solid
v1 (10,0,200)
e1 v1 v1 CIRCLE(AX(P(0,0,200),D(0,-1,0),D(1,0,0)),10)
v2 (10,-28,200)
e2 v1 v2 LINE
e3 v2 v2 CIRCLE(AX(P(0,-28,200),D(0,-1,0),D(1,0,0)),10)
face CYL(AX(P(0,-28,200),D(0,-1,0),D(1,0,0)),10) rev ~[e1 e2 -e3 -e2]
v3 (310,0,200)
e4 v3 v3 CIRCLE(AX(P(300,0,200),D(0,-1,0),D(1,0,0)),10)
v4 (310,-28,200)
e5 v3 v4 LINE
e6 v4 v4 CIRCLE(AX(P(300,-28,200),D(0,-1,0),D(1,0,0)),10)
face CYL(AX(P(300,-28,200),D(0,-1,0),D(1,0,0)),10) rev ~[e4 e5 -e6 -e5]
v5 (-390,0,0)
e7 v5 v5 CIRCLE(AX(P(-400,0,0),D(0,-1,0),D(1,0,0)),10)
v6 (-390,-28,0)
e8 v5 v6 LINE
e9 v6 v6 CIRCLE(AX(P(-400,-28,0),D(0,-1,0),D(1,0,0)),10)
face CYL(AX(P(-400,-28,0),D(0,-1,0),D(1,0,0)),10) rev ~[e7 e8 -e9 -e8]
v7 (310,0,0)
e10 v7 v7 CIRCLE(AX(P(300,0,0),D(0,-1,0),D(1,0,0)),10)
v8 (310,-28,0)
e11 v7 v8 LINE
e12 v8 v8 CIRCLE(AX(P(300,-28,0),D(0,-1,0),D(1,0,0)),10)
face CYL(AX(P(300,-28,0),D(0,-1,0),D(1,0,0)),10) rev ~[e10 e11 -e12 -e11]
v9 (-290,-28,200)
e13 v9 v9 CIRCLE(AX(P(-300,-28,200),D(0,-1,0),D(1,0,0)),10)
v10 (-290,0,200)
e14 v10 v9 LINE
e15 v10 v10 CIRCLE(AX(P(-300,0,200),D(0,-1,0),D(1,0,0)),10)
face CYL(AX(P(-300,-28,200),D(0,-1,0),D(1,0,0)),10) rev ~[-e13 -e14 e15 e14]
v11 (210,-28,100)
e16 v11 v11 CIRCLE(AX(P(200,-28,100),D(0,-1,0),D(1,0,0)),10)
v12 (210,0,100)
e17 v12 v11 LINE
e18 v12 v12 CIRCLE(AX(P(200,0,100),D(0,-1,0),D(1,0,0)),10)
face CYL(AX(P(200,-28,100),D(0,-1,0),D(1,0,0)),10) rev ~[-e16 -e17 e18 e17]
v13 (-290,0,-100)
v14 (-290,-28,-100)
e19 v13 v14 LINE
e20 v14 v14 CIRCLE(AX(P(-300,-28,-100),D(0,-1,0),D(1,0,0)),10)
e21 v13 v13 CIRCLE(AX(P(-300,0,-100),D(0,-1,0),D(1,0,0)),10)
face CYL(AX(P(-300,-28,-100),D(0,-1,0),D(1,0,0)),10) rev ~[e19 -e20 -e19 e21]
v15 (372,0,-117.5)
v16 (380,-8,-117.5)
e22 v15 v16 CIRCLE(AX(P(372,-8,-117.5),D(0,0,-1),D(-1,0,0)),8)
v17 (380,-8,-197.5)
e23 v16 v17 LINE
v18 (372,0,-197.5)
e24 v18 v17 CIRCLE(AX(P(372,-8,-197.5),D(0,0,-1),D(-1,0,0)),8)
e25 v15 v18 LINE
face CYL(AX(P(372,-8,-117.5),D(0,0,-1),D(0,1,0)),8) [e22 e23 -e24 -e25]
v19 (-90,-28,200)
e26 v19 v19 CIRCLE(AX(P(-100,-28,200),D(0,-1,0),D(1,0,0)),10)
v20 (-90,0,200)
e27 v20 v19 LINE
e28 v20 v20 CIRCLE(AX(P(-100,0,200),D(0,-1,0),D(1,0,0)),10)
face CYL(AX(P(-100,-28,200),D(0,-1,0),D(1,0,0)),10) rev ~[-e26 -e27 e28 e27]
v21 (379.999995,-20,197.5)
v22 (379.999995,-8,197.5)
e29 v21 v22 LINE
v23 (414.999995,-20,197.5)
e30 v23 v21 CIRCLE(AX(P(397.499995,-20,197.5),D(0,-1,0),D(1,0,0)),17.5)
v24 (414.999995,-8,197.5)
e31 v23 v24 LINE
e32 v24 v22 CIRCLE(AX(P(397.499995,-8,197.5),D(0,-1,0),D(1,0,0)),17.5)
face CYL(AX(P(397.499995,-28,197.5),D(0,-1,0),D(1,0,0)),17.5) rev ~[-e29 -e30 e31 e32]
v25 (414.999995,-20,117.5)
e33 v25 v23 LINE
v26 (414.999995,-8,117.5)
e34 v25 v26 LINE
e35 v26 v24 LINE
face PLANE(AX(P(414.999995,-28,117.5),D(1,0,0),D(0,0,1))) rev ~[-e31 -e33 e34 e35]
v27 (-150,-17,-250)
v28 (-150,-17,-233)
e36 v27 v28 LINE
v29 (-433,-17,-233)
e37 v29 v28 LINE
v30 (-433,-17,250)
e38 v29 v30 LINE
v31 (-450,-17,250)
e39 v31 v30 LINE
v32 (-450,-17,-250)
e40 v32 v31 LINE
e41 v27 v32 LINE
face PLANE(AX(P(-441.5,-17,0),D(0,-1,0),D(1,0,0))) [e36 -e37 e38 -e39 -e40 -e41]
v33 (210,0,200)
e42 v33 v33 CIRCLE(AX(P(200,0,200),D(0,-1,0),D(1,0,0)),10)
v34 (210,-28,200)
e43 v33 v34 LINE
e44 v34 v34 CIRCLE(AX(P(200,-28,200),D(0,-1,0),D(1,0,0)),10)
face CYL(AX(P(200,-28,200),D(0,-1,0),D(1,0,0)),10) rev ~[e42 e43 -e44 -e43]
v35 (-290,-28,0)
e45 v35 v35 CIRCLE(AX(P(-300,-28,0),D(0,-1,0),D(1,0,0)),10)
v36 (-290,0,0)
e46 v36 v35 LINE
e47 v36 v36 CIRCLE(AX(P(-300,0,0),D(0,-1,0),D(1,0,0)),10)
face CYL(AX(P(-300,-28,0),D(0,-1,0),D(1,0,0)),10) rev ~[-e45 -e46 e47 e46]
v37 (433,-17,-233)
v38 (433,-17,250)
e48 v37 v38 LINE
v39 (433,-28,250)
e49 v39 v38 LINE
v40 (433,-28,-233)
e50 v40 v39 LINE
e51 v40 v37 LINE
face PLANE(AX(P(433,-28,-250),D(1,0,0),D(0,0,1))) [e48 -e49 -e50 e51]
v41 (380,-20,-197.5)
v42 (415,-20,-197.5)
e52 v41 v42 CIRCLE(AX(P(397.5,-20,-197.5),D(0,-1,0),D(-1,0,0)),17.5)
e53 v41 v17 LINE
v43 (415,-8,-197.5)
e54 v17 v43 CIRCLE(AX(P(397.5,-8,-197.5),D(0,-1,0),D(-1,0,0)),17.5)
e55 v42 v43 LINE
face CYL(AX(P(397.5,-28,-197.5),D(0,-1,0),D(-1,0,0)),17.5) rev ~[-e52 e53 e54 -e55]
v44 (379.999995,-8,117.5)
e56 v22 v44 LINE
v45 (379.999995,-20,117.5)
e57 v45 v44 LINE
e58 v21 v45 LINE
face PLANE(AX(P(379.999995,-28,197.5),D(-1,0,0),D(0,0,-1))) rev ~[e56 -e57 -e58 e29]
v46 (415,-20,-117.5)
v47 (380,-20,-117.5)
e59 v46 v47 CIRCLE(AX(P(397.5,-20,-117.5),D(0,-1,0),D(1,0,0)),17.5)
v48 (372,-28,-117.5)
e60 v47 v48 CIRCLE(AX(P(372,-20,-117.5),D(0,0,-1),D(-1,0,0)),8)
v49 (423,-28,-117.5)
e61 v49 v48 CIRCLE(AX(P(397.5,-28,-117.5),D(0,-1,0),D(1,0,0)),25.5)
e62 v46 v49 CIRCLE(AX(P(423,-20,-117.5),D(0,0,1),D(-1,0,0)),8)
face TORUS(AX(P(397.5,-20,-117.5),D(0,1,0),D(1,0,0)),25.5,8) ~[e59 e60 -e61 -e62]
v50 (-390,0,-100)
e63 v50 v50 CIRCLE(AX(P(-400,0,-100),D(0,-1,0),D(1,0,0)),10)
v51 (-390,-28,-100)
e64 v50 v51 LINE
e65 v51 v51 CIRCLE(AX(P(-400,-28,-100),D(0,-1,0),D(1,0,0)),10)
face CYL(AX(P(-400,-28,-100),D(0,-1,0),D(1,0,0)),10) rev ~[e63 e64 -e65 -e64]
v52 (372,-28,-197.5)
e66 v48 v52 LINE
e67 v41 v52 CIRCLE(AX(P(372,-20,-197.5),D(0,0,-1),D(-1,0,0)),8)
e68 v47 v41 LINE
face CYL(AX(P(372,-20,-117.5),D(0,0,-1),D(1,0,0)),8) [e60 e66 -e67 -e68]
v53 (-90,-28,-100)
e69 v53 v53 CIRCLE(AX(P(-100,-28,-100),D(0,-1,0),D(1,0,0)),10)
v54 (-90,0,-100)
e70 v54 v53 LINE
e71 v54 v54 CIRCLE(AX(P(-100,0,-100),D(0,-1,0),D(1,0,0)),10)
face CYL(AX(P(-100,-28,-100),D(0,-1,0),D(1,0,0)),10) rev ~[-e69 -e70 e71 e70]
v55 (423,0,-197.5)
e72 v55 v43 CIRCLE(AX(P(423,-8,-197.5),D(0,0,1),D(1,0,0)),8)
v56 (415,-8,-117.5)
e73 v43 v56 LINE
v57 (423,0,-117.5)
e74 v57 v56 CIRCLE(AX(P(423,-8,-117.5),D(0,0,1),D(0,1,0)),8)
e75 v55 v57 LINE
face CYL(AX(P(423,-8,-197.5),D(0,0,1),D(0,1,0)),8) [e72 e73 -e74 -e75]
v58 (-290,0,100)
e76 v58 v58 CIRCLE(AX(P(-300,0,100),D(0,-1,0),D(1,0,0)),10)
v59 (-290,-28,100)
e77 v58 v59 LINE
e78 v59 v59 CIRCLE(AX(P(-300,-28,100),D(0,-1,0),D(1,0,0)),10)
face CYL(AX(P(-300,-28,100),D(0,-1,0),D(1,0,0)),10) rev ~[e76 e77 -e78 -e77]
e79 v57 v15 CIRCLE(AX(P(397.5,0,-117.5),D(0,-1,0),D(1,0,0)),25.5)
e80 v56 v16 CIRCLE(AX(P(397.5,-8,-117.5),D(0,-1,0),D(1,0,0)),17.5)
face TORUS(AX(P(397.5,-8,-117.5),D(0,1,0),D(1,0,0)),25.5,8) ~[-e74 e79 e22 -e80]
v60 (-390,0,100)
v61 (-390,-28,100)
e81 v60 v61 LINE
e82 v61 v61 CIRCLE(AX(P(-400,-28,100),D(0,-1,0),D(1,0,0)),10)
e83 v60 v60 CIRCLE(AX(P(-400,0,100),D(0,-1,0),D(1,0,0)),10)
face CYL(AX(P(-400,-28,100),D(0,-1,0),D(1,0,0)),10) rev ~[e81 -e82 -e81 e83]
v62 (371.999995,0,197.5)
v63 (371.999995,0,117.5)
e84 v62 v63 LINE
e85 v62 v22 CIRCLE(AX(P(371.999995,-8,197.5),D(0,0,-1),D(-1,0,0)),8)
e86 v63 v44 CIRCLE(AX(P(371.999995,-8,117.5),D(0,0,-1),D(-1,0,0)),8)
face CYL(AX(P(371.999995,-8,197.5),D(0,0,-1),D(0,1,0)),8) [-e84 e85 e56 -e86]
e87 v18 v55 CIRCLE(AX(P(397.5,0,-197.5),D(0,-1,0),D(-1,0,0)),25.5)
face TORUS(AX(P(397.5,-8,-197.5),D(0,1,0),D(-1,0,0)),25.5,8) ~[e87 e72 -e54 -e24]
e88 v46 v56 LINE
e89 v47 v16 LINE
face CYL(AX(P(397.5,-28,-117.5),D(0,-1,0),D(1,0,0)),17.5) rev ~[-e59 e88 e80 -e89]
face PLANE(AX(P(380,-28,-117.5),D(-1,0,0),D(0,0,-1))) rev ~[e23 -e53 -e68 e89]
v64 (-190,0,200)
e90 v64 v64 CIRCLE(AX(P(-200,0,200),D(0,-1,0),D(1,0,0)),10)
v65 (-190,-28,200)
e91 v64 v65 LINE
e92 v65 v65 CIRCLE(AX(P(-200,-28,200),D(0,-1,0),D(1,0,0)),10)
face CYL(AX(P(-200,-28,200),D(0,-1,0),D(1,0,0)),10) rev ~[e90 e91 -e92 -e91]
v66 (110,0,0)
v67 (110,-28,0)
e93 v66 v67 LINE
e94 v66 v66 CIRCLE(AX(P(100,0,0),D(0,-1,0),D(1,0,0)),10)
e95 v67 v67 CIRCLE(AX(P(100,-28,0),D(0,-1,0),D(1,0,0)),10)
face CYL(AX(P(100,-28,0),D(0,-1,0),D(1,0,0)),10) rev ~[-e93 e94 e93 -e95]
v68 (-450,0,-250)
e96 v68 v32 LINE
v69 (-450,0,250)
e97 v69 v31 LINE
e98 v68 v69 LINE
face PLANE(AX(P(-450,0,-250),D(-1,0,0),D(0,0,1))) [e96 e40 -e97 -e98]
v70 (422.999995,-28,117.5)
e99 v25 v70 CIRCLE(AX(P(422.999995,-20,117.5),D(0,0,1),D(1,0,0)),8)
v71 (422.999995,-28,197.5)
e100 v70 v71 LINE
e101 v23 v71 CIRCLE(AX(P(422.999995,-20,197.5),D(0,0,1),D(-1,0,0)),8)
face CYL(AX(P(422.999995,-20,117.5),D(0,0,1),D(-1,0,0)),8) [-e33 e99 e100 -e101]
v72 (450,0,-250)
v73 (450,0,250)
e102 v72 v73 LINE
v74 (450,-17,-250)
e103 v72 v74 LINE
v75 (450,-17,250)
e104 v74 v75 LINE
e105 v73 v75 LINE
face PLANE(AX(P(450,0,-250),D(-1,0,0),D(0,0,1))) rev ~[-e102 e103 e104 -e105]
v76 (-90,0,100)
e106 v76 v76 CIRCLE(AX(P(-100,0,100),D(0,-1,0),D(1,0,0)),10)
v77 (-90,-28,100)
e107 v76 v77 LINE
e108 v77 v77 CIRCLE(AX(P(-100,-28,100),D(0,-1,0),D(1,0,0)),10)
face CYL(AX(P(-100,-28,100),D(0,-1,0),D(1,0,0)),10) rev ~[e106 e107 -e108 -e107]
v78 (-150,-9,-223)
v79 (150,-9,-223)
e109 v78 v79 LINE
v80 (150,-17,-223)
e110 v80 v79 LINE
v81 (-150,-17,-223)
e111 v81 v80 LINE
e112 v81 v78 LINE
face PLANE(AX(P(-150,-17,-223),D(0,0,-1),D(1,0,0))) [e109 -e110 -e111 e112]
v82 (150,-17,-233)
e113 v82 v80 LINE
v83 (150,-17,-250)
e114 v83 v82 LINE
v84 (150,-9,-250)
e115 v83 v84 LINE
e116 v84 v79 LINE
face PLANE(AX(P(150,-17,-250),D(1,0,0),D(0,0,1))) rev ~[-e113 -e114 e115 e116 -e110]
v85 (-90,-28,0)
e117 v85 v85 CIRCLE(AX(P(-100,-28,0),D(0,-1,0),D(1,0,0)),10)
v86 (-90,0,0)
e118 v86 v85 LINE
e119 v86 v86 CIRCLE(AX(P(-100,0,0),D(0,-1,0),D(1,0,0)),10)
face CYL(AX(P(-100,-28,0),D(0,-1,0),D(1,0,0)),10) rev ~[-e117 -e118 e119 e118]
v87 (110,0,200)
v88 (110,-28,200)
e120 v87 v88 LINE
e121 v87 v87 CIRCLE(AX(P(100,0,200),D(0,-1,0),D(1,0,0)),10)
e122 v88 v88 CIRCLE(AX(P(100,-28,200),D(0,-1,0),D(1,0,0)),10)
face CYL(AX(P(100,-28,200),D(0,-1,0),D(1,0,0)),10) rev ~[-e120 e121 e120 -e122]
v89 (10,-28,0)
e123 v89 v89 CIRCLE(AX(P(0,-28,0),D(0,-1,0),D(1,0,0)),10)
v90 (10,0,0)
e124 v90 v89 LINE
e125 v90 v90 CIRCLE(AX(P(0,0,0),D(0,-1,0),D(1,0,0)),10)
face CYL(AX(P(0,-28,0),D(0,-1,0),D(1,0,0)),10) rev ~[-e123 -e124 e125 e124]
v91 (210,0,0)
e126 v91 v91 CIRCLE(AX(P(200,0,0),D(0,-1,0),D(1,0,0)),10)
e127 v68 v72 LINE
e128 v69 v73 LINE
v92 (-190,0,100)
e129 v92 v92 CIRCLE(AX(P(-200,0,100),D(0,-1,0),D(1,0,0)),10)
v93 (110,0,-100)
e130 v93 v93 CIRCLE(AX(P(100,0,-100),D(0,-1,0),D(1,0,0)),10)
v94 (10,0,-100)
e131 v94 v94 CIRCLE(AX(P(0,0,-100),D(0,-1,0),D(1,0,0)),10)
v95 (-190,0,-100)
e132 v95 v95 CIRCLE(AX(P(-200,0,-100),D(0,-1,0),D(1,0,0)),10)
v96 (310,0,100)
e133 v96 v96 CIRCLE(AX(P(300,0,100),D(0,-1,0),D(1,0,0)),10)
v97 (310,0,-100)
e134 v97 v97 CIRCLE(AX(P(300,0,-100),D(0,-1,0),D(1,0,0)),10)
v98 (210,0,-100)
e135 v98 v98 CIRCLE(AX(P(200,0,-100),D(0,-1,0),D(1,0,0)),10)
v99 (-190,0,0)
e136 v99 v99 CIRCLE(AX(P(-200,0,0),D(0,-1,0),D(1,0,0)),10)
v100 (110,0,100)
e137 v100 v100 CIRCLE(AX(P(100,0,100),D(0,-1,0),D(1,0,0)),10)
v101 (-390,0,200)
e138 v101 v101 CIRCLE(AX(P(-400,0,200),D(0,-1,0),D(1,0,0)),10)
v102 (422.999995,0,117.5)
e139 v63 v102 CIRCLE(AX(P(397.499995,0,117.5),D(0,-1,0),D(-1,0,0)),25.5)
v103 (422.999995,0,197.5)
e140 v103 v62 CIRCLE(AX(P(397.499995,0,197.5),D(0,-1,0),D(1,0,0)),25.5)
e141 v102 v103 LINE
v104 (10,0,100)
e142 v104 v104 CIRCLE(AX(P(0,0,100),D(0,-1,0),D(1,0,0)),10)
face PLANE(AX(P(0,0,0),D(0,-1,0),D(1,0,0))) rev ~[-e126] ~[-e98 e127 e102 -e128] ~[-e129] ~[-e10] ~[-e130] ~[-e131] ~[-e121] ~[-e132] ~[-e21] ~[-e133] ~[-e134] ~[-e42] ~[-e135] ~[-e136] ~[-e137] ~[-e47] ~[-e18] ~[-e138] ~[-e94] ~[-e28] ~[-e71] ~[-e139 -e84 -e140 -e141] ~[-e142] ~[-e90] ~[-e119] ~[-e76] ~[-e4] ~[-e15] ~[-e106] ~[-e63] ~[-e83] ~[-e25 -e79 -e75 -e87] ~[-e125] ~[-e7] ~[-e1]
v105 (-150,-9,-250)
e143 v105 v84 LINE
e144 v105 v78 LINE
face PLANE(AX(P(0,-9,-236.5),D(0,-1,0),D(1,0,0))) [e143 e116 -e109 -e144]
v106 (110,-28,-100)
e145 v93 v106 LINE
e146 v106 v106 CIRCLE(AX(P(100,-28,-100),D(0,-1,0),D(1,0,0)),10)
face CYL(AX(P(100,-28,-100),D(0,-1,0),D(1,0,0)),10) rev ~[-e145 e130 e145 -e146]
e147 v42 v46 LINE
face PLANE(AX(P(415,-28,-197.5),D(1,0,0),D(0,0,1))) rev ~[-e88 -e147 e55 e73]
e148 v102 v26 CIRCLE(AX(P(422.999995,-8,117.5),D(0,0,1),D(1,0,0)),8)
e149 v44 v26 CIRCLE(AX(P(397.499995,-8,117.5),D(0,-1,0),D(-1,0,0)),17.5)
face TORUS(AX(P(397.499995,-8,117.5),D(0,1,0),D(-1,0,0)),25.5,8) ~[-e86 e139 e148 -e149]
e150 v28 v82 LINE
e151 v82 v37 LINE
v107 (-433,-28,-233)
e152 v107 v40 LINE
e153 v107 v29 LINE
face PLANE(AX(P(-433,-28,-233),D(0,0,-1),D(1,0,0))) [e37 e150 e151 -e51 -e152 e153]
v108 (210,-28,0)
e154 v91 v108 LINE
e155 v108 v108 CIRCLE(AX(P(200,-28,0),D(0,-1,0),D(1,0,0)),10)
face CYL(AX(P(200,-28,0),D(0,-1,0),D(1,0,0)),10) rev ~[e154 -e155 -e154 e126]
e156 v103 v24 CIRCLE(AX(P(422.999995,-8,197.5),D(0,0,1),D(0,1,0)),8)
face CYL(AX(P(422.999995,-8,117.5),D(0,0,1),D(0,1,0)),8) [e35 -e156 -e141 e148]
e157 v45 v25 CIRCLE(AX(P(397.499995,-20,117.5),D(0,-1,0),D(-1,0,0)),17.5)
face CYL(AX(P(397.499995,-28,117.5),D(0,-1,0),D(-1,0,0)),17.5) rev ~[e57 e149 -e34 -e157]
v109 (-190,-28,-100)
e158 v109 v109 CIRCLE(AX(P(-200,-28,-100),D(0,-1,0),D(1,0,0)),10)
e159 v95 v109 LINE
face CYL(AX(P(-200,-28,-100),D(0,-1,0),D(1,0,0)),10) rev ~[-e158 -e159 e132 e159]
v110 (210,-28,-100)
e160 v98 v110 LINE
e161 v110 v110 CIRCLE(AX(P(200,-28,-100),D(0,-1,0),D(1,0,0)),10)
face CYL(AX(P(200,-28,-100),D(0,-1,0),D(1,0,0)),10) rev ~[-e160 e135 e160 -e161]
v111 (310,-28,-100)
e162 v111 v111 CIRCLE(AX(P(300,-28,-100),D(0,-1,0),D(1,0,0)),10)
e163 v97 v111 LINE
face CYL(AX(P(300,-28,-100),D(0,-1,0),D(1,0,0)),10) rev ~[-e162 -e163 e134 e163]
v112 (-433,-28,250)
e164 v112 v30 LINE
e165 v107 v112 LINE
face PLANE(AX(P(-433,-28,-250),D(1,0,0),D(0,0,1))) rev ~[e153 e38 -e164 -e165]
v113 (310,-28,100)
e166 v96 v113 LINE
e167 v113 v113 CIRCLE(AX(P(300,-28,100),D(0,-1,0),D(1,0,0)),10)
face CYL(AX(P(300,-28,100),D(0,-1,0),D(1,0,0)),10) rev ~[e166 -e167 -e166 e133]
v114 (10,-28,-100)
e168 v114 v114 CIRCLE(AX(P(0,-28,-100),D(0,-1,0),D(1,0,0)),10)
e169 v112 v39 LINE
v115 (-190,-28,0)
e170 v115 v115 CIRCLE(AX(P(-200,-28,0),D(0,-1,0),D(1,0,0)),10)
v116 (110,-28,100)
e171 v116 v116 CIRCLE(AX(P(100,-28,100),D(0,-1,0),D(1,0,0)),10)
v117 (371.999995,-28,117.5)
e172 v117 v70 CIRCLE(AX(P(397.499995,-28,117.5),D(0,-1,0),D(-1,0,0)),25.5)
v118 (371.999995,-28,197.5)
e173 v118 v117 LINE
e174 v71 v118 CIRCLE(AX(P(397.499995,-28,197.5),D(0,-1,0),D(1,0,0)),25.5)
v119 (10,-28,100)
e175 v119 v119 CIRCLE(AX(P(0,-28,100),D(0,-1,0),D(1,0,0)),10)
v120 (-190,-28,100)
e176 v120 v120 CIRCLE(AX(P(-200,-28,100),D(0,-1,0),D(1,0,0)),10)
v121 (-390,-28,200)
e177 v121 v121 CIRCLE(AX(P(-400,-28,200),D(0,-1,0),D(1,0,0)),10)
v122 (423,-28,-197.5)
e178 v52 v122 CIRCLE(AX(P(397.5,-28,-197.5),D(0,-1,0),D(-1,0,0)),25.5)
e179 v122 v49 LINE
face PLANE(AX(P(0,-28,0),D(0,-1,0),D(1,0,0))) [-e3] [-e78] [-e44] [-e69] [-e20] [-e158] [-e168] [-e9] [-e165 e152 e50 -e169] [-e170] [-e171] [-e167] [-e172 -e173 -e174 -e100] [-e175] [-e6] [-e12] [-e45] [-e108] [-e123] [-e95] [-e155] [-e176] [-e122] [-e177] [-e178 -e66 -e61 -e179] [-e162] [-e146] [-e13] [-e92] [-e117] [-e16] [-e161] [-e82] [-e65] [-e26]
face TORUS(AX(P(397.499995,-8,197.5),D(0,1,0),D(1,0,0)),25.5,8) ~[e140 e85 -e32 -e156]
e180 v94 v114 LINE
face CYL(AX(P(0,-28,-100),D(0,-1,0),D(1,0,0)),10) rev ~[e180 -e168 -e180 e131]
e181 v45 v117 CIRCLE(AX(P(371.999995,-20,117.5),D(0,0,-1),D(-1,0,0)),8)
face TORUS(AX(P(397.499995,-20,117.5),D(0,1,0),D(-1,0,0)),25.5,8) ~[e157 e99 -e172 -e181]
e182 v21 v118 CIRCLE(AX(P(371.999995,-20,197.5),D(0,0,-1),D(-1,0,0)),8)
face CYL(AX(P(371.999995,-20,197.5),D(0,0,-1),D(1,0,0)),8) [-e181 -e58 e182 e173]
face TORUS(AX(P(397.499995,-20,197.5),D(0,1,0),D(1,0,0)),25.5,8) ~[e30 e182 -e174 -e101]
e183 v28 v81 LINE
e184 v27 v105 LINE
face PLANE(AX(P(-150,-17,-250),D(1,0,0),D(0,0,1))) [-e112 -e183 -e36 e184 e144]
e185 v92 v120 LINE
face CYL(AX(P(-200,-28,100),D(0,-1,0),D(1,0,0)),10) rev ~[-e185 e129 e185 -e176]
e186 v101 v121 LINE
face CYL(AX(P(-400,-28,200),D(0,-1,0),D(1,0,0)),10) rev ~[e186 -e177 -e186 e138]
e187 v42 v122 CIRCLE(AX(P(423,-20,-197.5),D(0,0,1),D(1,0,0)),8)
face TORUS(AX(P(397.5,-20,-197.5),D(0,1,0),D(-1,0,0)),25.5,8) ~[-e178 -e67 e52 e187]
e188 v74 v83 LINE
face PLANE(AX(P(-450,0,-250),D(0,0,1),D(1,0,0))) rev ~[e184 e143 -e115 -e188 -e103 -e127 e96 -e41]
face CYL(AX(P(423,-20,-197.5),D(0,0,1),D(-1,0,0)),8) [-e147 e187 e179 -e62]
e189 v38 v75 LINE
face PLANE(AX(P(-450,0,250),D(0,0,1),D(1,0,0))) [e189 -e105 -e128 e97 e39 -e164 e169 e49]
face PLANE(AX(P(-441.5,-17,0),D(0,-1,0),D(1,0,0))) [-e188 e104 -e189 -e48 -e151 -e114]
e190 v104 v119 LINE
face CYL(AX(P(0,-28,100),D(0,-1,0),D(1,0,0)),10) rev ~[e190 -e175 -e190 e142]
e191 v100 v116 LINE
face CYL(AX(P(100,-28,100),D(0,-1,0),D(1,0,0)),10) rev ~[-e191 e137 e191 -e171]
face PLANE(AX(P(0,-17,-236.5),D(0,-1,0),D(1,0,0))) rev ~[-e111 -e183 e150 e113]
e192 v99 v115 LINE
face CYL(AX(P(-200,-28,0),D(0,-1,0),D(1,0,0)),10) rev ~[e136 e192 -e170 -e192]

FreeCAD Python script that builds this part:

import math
import FreeCAD as App
import Part
import Sketcher


def edges_at(feature, points):
    """Names of the edges that pass closest to the given points."""
    edges = feature.Shape.Edges
    near = lambda p: min(range(len(edges)), key=lambda i: edges[i].distToShape(Part.Vertex(*p))[0])
    return sorted({f"Edge{near(p) + 1}" for p in points})

doc = App.newDocument("Part")
body = doc.addObject("PartDesign::Body", "Body")

# Sketch on XZ plane
sketch1 = doc.addObject("Sketcher::SketchObject", "Sketch")
body.addObject(sketch1)
sketch1.AttachmentSupport = (doc.XZ_Plane, [""])
sketch1.MapMode = "FlatFace"
sketch1.addGeometry(Part.LineSegment(App.Vector(-450, 250, 0), App.Vector(-450, -250, 0)), False)
sketch1.addGeometry(Part.LineSegment(App.Vector(-450, -250, 0), App.Vector(450, -250, 0)), False)
sketch1.addGeometry(Part.LineSegment(App.Vector(450, -250, 0), App.Vector(450, 250, 0)), False)
sketch1.addGeometry(Part.LineSegment(App.Vector(450, 250, 0), App.Vector(-450, 250, 0)), False)
sketch1.addConstraint(Sketcher.Constraint("Coincident", 0, 2, 1, 1))
sketch1.addConstraint(Sketcher.Constraint("Coincident", 1, 2, 2, 1))
sketch1.addConstraint(Sketcher.Constraint("Coincident", 2, 2, 3, 1))
sketch1.addConstraint(Sketcher.Constraint("Coincident", 3, 2, 0, 1))
sketch1.addConstraint(Sketcher.Constraint("Vertical", 0))
sketch1.addConstraint(Sketcher.Constraint("Horizontal", 1))
sketch1.addConstraint(Sketcher.Constraint("Vertical", 2))
sketch1.addConstraint(Sketcher.Constraint("Horizontal", 3))
sketch1.addConstraint(Sketcher.Constraint("Symmetric", 0, 2, 2, 2, -1, 1))
sketch1.addConstraint(Sketcher.Constraint("DistanceX", 1, 1, 1, 2, 900.0))
sketch1.addConstraint(Sketcher.Constraint("DistanceY", 0, 2, 0, 1, 500.0))
pad1 = doc.addObject("PartDesign::Pad", "Pad")
body.addObject(pad1)
pad1.Profile = sketch1
pad1.Length = 28
body2 = doc.addObject("PartDesign::Body", "Body001")
body2.AllowCompound = True

# Sketch on XZ plane
sketch2 = doc.addObject("Sketcher::SketchObject", "Sketch001")
body2.addObject(sketch2)
sketch2.AttachmentSupport = (doc.getObject("XZ_Plane001"), [""])
sketch2.MapMode = "FlatFace"
sketch2.AttachmentOffset = App.Placement(App.Vector(0, 0, 28), App.Rotation())
sketch2.addGeometry(Part.Circle(App.Vector(300, -100, 0), App.Vector(0, 0, 1), 10), False)
sketch2.addGeometry(Part.Circle(App.Vector(200, -100, 0), App.Vector(0, 0, 1), 10), False)
sketch2.addGeometry(Part.Circle(App.Vector(100, -100, 0), App.Vector(0, 0, 1), 10), False)
sketch2.addGeometry(Part.Circle(App.Vector(0, -100, 0), App.Vector(0, 0, 1), 10), False)
sketch2.addGeometry(Part.Circle(App.Vector(-100, -100, 0), App.Vector(0, 0, 1), 10), False)
sketch2.addGeometry(Part.Circle(App.Vector(-200, -100, 0), App.Vector(0, 0, 1), 10), False)
sketch2.addGeometry(Part.Circle(App.Vector(-300, -100, 0), App.Vector(0, 0, 1), 10), False)
sketch2.addGeometry(Part.Circle(App.Vector(-400, -100, 0), App.Vector(0, 0, 1), 10), False)
sketch2.addGeometry(Part.Circle(App.Vector(-400, 0, 0), App.Vector(0, 0, 1), 10), False)
sketch2.addGeometry(Part.Circle(App.Vector(-300, 0, 0), App.Vector(0, 0, 1), 10), False)
sketch2.addGeometry(Part.Circle(App.Vector(-200, 0, 0), App.Vector(0, 0, 1), 10), False)
sketch2.addGeometry(Part.Circle(App.Vector(-100, 0, 0), App.Vector(0, 0, 1), 10), False)
sketch2.addGeometry(Part.Circle(App.Vector(0, 0, 0), App.Vector(0, 0, 1), 10), False)
sketch2.addGeometry(Part.Circle(App.Vector(100, 0, 0), App.Vector(0, 0, 1), 10), False)
sketch2.addGeometry(Part.Circle(App.Vector(200, 0, 0), App.Vector(0, 0, 1), 10), False)
sketch2.addGeometry(Part.Circle(App.Vector(300, 0, 0), App.Vector(0, 0, 1), 10), False)
sketch2.addGeometry(Part.Circle(App.Vector(-400, 100, 0), App.Vector(0, 0, 1), 10), False)
sketch2.addGeometry(Part.Circle(App.Vector(-300, 100, 0), App.Vector(0, 0, 1), 10), False)
sketch2.addGeometry(Part.Circle(App.Vector(-200, 100, 0), App.Vector(0, 0, 1), 10), False)
sketch2.addGeometry(Part.Circle(App.Vector(-100, 100, 0), App.Vector(0, 0, 1), 10), False)
sketch2.addGeometry(Part.Circle(App.Vector(0, 100, 0), App.Vector(0, 0, 1), 10), False)
sketch2.addGeometry(Part.Circle(App.Vector(100, 100, 0), App.Vector(0, 0, 1), 10), False)
sketch2.addGeometry(Part.Circle(App.Vector(200, 100, 0), App.Vector(0, 0, 1), 10), False)
sketch2.addGeometry(Part.Circle(App.Vector(300, 100, 0), App.Vector(0, 0, 1), 10), False)
sketch2.addGeometry(Part.Circle(App.Vector(-400, 200, 0), App.Vector(0, 0, 1), 10), False)
sketch2.addGeometry(Part.Circle(App.Vector(-300, 200, 0), App.Vector(0, 0, 1), 10), False)
sketch2.addGeometry(Part.Circle(App.Vector(-200, 200, 0), App.Vector(0, 0, 1), 10), False)
sketch2.addGeometry(Part.Circle(App.Vector(-100, 200, 0), App.Vector(0, 0, 1), 10), False)
sketch2.addGeometry(Part.Circle(App.Vector(0, 200, 0), App.Vector(0, 0, 1), 10), False)
sketch2.addGeometry(Part.Circle(App.Vector(100, 200, 0), App.Vector(0, 0, 1), 10), False)
sketch2.addGeometry(Part.Circle(App.Vector(200, 200, 0), App.Vector(0, 0, 1), 10), False)
sketch2.addGeometry(Part.Circle(App.Vector(300, 200, 0), App.Vector(0, 0, 1), 10), False)
sketch2.addConstraint(Sketcher.Constraint("Coincident", 12, 3, -1, 1))
sketch2.addConstraint(Sketcher.Constraint("Equal", 0, 1))
sketch2.addConstraint(Sketcher.Constraint("Equal", 1, 2))
sketch2.addConstraint(Sketcher.Constraint("Equal", 2, 3))
sketch2.addConstraint(Sketcher.Constraint("Equal", 3, 4))
sketch2.addConstraint(Sketcher.Constraint("Equal", 4, 5))
sketch2.addConstraint(Sketcher.Constraint("Equal", 5, 6))
sketch2.addConstraint(Sketcher.Constraint("Equal", 6, 7))
sketch2.addConstraint(Sketcher.Constraint("Equal", 7, 8))
sketch2.addConstraint(Sketcher.Constraint("Equal", 8, 9))
sketch2.addConstraint(Sketcher.Constraint("Equal", 9, 10))
sketch2.addConstraint(Sketcher.Constraint("Equal", 10, 11))
sketch2.addConstraint(Sketcher.Constraint("Equal", 11, 12))
sketch2.addConstraint(Sketcher.Constraint("Equal", 12, 13))
sketch2.addConstraint(Sketcher.Constraint("Equal", 13, 14))
sketch2.addConstraint(Sketcher.Constraint("Equal", 14, 15))
sketch2.addConstraint(Sketcher.Constraint("Equal", 15, 16))
sketch2.addConstraint(Sketcher.Constraint("Equal", 16, 17))
sketch2.addConstraint(Sketcher.Constraint("Equal", 17, 18))
sketch2.addConstraint(Sketcher.Constraint("Equal", 18, 19))
sketch2.addConstraint(Sketcher.Constraint("Equal", 19, 20))
sketch2.addConstraint(Sketcher.Constraint("Equal", 20, 21))
sketch2.addConstraint(Sketcher.Constraint("Equal", 21, 22))
sketch2.addConstraint(Sketcher.Constraint("Equal", 22, 23))
sketch2.addConstraint(Sketcher.Constraint("Equal", 23, 24))
sketch2.addConstraint(Sketcher.Constraint("Equal", 24, 25))
sketch2.addConstraint(Sketcher.Constraint("Equal", 25, 26))
sketch2.addConstraint(Sketcher.Constraint("Equal", 26, 27))
sketch2.addConstraint(Sketcher.Constraint("Equal", 27, 28))
sketch2.addConstraint(Sketcher.Constraint("Equal", 28, 29))
sketch2.addConstraint(Sketcher.Constraint("Equal", 29, 30))
sketch2.addConstraint(Sketcher.Constraint("Equal", 30, 31))
sketch2.addConstraint(Sketcher.Constraint("Symmetric", 11, 3, 13, 3, -1, 1))
sketch2.addConstraint(Sketcher.Constraint("Symmetric", 10, 3, 14, 3, -1, 1))
sketch2.addConstraint(Sketcher.Constraint("Symmetric", 9, 3, 15, 3, -1, 1))
sketch2.addConstraint(Sketcher.Constraint("Symmetric", 0, 3, 17, 3, -1, 1))
sketch2.addConstraint(Sketcher.Constraint("Symmetric", 1, 3, 18, 3, -1, 1))
sketch2.addConstraint(Sketcher.Constraint("Symmetric", 2, 3, 19, 3, -1, 1))
sketch2.addConstraint(Sketcher.Constraint("Symmetric", 3, 3, 20, 3, -1, 1))
sketch2.addConstraint(Sketcher.Constraint("Symmetric", 4, 3, 21, 3, -1, 1))
sketch2.addConstraint(Sketcher.Constraint("Symmetric", 5, 3, 22, 3, -1, 1))
sketch2.addConstraint(Sketcher.Constraint("Symmetric", 6, 3, 23, 3, -1, 1))
sketch2.addConstraint(Sketcher.Constraint("Symmetric", 2, 3, 4, 3, -2))
sketch2.addConstraint(Sketcher.Constraint("Symmetric", 1, 3, 5, 3, -2))
sketch2.addConstraint(Sketcher.Constraint("Symmetric", 0, 3, 6, 3, -2))
sketch2.addConstraint(Sketcher.Constraint("Symmetric", 27, 3, 29, 3, -2))
sketch2.addConstraint(Sketcher.Constraint("Symmetric", 26, 3, 30, 3, -2))
sketch2.addConstraint(Sketcher.Constraint("Symmetric", 25, 3, 31, 3, -2))
sketch2.addConstraint(Sketcher.Constraint("Symmetric", 7, 3, 16, 3, -1))
sketch2.addConstraint(Sketcher.Constraint("PointOnObject", 3, 3, -2))
sketch2.addConstraint(Sketcher.Constraint("PointOnObject", 8, 3, -1))
sketch2.addConstraint(Sketcher.Constraint("PointOnObject", 9, 3, -1))
sketch2.addConstraint(Sketcher.Constraint("PointOnObject", 10, 3, -1))
sketch2.addConstraint(Sketcher.Constraint("PointOnObject", 11, 3, -1))
sketch2.addConstraint(Sketcher.Constraint("PointOnObject", 28, 3, -2))
sketch2.addConstraint(Sketcher.Constraint("Horizontal", 0, 3, 1, 3))
sketch2.addConstraint(Sketcher.Constraint("Horizontal", 1, 3, 2, 3))
sketch2.addConstraint(Sketcher.Constraint("Horizontal", 2, 3, 3, 3))
sketch2.addConstraint(Sketcher.Constraint("Horizontal", 6, 3, 7, 3))
sketch2.addConstraint(Sketcher.Constraint("Horizontal", 24, 3, 25, 3))
sketch2.addConstraint(Sketcher.Constraint("Horizontal", 25, 3, 26, 3))
sketch2.addConstraint(Sketcher.Constraint("Horizontal", 26, 3, 27, 3))
sketch2.addConstraint(Sketcher.Constraint("Horizontal", 27, 3, 28, 3))
sketch2.addConstraint(Sketcher.Constraint("Vertical", 7, 3, 8, 3))
sketch2.addConstraint(Sketcher.Constraint("Vertical", 6, 3, 9, 3))
sketch2.addConstraint(Sketcher.Constraint("Vertical", 5, 3, 10, 3))
sketch2.addConstraint(Sketcher.Constraint("Vertical", 4, 3, 11, 3))
sketch2.addConstraint(Sketcher.Constraint("Vertical", 16, 3, 24, 3))
sketch2.addConstraint(Sketcher.Constraint("Vertical", 17, 3, 25, 3))
sketch2.addConstraint(Sketcher.Constraint("Vertical", 18, 3, 26, 3))
sketch2.addConstraint(Sketcher.Constraint("Vertical", 19, 3, 27, 3))
sketch2.addConstraint(Sketcher.Constraint("Diameter", 0, 20.0))
sketch2.addConstraint(Sketcher.Constraint("DistanceX", -1, 1, 0, 3, 300.0))
sketch2.addConstraint(Sketcher.Constraint("DistanceY", 0, 3, -1, 1, 100.0))
sketch2.addConstraint(Sketcher.Constraint("DistanceX", -1, 1, 1, 3, 200.0))
sketch2.addConstraint(Sketcher.Constraint("DistanceX", -1, 1, 2, 3, 100.0))
sketch2.addConstraint(Sketcher.Constraint("DistanceX", 7, 3, -1, 1, 400.0))
sketch2.addConstraint(Sketcher.Constraint("DistanceY", -1, 1, 24, 3, 200.0))
pad2 = doc.addObject("PartDesign::Pad", "Pad001")
body2.addObject(pad2)
pad2.Profile = sketch2
pad2.Type = "TwoLengths"
pad2.Length = 25
pad2.Length2 = 35
body3 = doc.addObject("PartDesign::Body", "Body002")
body3.AllowCompound = True

# Sketch on XZ plane
sketch3 = doc.addObject("Sketcher::SketchObject", "Sketch002")
body3.addObject(sketch3)
sketch3.AttachmentSupport = (doc.getObject("XZ_Plane002"), [""])
sketch3.MapMode = "FlatFace"
sketch3.AttachmentOffset = App.Placement(App.Vector(0, 0, 28), App.Rotation())
sketch3.addGeometry(Part.Circle(App.Vector(300, -100, 0), App.Vector(0, 0, 1), 10), False)
sketch3.addGeometry(Part.Circle(App.Vector(200, -100, 0), App.Vector(0, 0, 1), 10), False)
sketch3.addGeometry(Part.Circle(App.Vector(100, -100, 0), App.Vector(0, 0, 1), 10), False)
sketch3.addGeometry(Part.Circle(App.Vector(0, -100, 0), App.Vector(0, 0, 1), 10), False)
sketch3.addGeometry(Part.Circle(App.Vector(-100, -100, 0), App.Vector(0, 0, 1), 10), False)
sketch3.addGeometry(Part.Circle(App.Vector(-200, -100, 0), App.Vector(0, 0, 1), 10), False)
sketch3.addGeometry(Part.Circle(App.Vector(-300, -100, 0), App.Vector(0, 0, 1), 10), False)
sketch3.addGeometry(Part.Circle(App.Vector(-400, -100, 0), App.Vector(0, 0, 1), 10), False)
sketch3.addGeometry(Part.Circle(App.Vector(-400, 0, 0), App.Vector(0, 0, 1), 10), False)
sketch3.addGeometry(Part.Circle(App.Vector(-300, 0, 0), App.Vector(0, 0, 1), 10), False)
sketch3.addGeometry(Part.Circle(App.Vector(-200, 0, 0), App.Vector(0, 0, 1), 10), False)
sketch3.addGeometry(Part.Circle(App.Vector(-100, 0, 0), App.Vector(0, 0, 1), 10), False)
sketch3.addGeometry(Part.Circle(App.Vector(0, 0, 0), App.Vector(0, 0, 1), 10), False)
sketch3.addGeometry(Part.Circle(App.Vector(100, 0, 0), App.Vector(0, 0, 1), 10), False)
sketch3.addGeometry(Part.Circle(App.Vector(200, 0, 0), App.Vector(0, 0, 1), 10), False)
sketch3.addGeometry(Part.Circle(App.Vector(300, 0, 0), App.Vector(0, 0, 1), 10), False)
sketch3.addGeometry(Part.Circle(App.Vector(-400, 100, 0), App.Vector(0, 0, 1), 10), False)
sketch3.addGeometry(Part.Circle(App.Vector(-300, 100, 0), App.Vector(0, 0, 1), 10), False)
sketch3.addGeometry(Part.Circle(App.Vector(-200, 100, 0), App.Vector(0, 0, 1), 10), False)
sketch3.addGeometry(Part.Circle(App.Vector(-100, 100, 0), App.Vector(0, 0, 1), 10), False)
sketch3.addGeometry(Part.Circle(App.Vector(0, 100, 0), App.Vector(0, 0, 1), 10), False)
sketch3.addGeometry(Part.Circle(App.Vector(100, 100, 0), App.Vector(0, 0, 1), 10), False)
sketch3.addGeometry(Part.Circle(App.Vector(200, 100, 0), App.Vector(0, 0, 1), 10), False)
sketch3.addGeometry(Part.Circle(App.Vector(300, 100, 0), App.Vector(0, 0, 1), 10), False)
sketch3.addGeometry(Part.Circle(App.Vector(-400, 200, 0), App.Vector(0, 0, 1), 10), False)
sketch3.addGeometry(Part.Circle(App.Vector(-300, 200, 0), App.Vector(0, 0, 1), 10), False)
sketch3.addGeometry(Part.Circle(App.Vector(-200, 200, 0), App.Vector(0, 0, 1), 10), False)
sketch3.addGeometry(Part.Circle(App.Vector(-100, 200, 0), App.Vector(0, 0, 1), 10), False)
sketch3.addGeometry(Part.Circle(App.Vector(0, 200, 0), App.Vector(0, 0, 1), 10), False)
sketch3.addGeometry(Part.Circle(App.Vector(100, 200, 0), App.Vector(0, 0, 1), 10), False)
sketch3.addGeometry(Part.Circle(App.Vector(200, 200, 0), App.Vector(0, 0, 1), 10), False)
sketch3.addGeometry(Part.Circle(App.Vector(300, 200, 0), App.Vector(0, 0, 1), 10), False)
sketch3.addConstraint(Sketcher.Constraint("Coincident", 12, 3, -1, 1))
sketch3.addConstraint(Sketcher.Constraint("Equal", 0, 1))
sketch3.addConstraint(Sketcher.Constraint("Equal", 1, 2))
sketch3.addConstraint(Sketcher.Constraint("Equal", 2, 3))
sketch3.addConstraint(Sketcher.Constraint("Equal", 3, 4))
sketch3.addConstraint(Sketcher.Constraint("Equal", 4, 5))
sketch3.addConstraint(Sketcher.Constraint("Equal", 5, 6))
sketch3.addConstraint(Sketcher.Constraint("Equal", 6, 7))
sketch3.addConstraint(Sketcher.Constraint("Equal", 7, 8))
sketch3.addConstraint(Sketcher.Constraint("Equal", 8, 9))
sketch3.addConstraint(Sketcher.Constraint("Equal", 9, 10))
sketch3.addConstraint(Sketcher.Constraint("Equal", 10, 11))
sketch3.addConstraint(Sketcher.Constraint("Equal", 11, 12))
sketch3.addConstraint(Sketcher.Constraint("Equal", 12, 13))
sketch3.addConstraint(Sketcher.Constraint("Equal", 13, 14))
sketch3.addConstraint(Sketcher.Constraint("Equal", 14, 15))
sketch3.addConstraint(Sketcher.Constraint("Equal", 15, 16))
sketch3.addConstraint(Sketcher.Constraint("Equal", 16, 17))
sketch3.addConstraint(Sketcher.Constraint("Equal", 17, 18))
sketch3.addConstraint(Sketcher.Constraint("Equal", 18, 19))
sketch3.addConstraint(Sketcher.Constraint("Equal", 19, 20))
sketch3.addConstraint(Sketcher.Constraint("Equal", 20, 21))
sketch3.addConstraint(Sketcher.Constraint("Equal", 21, 22))
sketch3.addConstraint(Sketcher.Constraint("Equal", 22, 23))
sketch3.addConstraint(Sketcher.Constraint("Equal", 23, 24))
sketch3.addConstraint(Sketcher.Constraint("Equal", 24, 25))
sketch3.addConstraint(Sketcher.Constraint("Equal", 25, 26))
sketch3.addConstraint(Sketcher.Constraint("Equal", 26, 27))
sketch3.addConstraint(Sketcher.Constraint("Equal", 27, 28))
sketch3.addConstraint(Sketcher.Constraint("Equal", 28, 29))
sketch3.addConstraint(Sketcher.Constraint("Equal", 29, 30))
sketch3.addConstraint(Sketcher.Constraint("Equal", 30, 31))
sketch3.addConstraint(Sketcher.Constraint("Symmetric", 11, 3, 13, 3, -1, 1))
sketch3.addConstraint(Sketcher.Constraint("Symmetric", 10, 3, 14, 3, -1, 1))
sketch3.addConstraint(Sketcher.Constraint("Symmetric", 9, 3, 15, 3, -1, 1))
sketch3.addConstraint(Sketcher.Constraint("Symmetric", 0, 3, 17, 3, -1, 1))
sketch3.addConstraint(Sketcher.Constraint("Symmetric", 1, 3, 18, 3, -1, 1))
sketch3.addConstraint(Sketcher.Constraint("Symmetric", 2, 3, 19, 3, -1, 1))
sketch3.addConstraint(Sketcher.Constraint("Symmetric", 3, 3, 20, 3, -1, 1))
sketch3.addConstraint(Sketcher.Constraint("Symmetric", 4, 3, 21, 3, -1, 1))
sketch3.addConstraint(Sketcher.Constraint("Symmetric", 5, 3, 22, 3, -1, 1))
sketch3.addConstraint(Sketcher.Constraint("Symmetric", 6, 3, 23, 3, -1, 1))
sketch3.addConstraint(Sketcher.Constraint("Symmetric", 2, 3, 4, 3, -2))
sketch3.addConstraint(Sketcher.Constraint("Symmetric", 1, 3, 5, 3, -2))
sketch3.addConstraint(Sketcher.Constraint("Symmetric", 0, 3, 6, 3, -2))
sketch3.addConstraint(Sketcher.Constraint("Symmetric", 27, 3, 29, 3, -2))
sketch3.addConstraint(Sketcher.Constraint("Symmetric", 26, 3, 30, 3, -2))
sketch3.addConstraint(Sketcher.Constraint("Symmetric", 25, 3, 31, 3, -2))
sketch3.addConstraint(Sketcher.Constraint("Symmetric", 7, 3, 16, 3, -1))
sketch3.addConstraint(Sketcher.Constraint("PointOnObject", 3, 3, -2))
sketch3.addConstraint(Sketcher.Constraint("PointOnObject", 8, 3, -1))
sketch3.addConstraint(Sketcher.Constraint("PointOnObject", 9, 3, -1))
sketch3.addConstraint(Sketcher.Constraint("PointOnObject", 10, 3, -1))
sketch3.addConstraint(Sketcher.Constraint("PointOnObject", 11, 3, -1))
sketch3.addConstraint(Sketcher.Constraint("PointOnObject", 28, 3, -2))
sketch3.addConstraint(Sketcher.Constraint("Horizontal", 0, 3, 1, 3))
sketch3.addConstraint(Sketcher.Constraint("Horizontal", 1, 3, 2, 3))
sketch3.addConstraint(Sketcher.Constraint("Horizontal", 2, 3, 3, 3))
sketch3.addConstraint(Sketcher.Constraint("Horizontal", 6, 3, 7, 3))
sketch3.addConstraint(Sketcher.Constraint("Horizontal", 24, 3, 25, 3))
sketch3.addConstraint(Sketcher.Constraint("Horizontal", 25, 3, 26, 3))
sketch3.addConstraint(Sketcher.Constraint("Horizontal", 26, 3, 27, 3))
sketch3.addConstraint(Sketcher.Constraint("Horizontal", 27, 3, 28, 3))
sketch3.addConstraint(Sketcher.Constraint("Vertical", 7, 3, 8, 3))
sketch3.addConstraint(Sketcher.Constraint("Vertical", 6, 3, 9, 3))
sketch3.addConstraint(Sketcher.Constraint("Vertical", 5, 3, 10, 3))
sketch3.addConstraint(Sketcher.Constraint("Vertical", 4, 3, 11, 3))
sketch3.addConstraint(Sketcher.Constraint("Vertical", 16, 3, 24, 3))
sketch3.addConstraint(Sketcher.Constraint("Vertical", 17, 3, 25, 3))
sketch3.addConstraint(Sketcher.Constraint("Vertical", 18, 3, 26, 3))
sketch3.addConstraint(Sketcher.Constraint("Vertical", 19, 3, 27, 3))
sketch3.addConstraint(Sketcher.Constraint("Diameter", 0, 20.0))
sketch3.addConstraint(Sketcher.Constraint("DistanceX", -1, 1, 0, 3, 300.0))
sketch3.addConstraint(Sketcher.Constraint("DistanceY", 0, 3, -1, 1, 100.0))
sketch3.addConstraint(Sketcher.Constraint("DistanceX", -1, 1, 1, 3, 200.0))
sketch3.addConstraint(Sketcher.Constraint("DistanceX", -1, 1, 2, 3, 100.0))
sketch3.addConstraint(Sketcher.Constraint("DistanceX", 7, 3, -1, 1, 400.0))
sketch3.addConstraint(Sketcher.Constraint("DistanceY", -1, 1, 24, 3, 200.0))
pad3 = doc.addObject("PartDesign::Pad", "Pad002")
body3.addObject(pad3)
pad3.Profile = sketch3
pad3.Type = "TwoLengths"
pad3.Length = 25
pad3.Length2 = 35
doc.recompute()

boolean = doc.addObject("PartDesign::Boolean", "Boolean")
body.addObject(boolean)
boolean.Type = "Cut"
boolean.addObjects([body2])
doc.recompute()

boolean2 = doc.addObject("PartDesign::Boolean", "Boolean001")
body.addObject(boolean2)
boolean2.Type = "Cut"
boolean2.addObjects([body3])

# Sketch on XZ plane
sketch4 = doc.addObject("Sketcher::SketchObject", "Sketch003")
body.addObject(sketch4)
sketch4.AttachmentSupport = (doc.XZ_Plane, [""])
sketch4.MapMode = "FlatFace"
sketch4.AttachmentOffset = App.Placement(App.Vector(0, 0, 28), App.Rotation())
sketch4.addGeometry(Part.LineSegment(App.Vector(433, 250, 0), App.Vector(433, -250, 0)), False)
sketch4.addGeometry(Part.LineSegment(App.Vector(433, -250, 0), App.Vector(450, -250, 0)), False)
sketch4.addGeometry(Part.LineSegment(App.Vector(450, -250, 0), App.Vector(450, 250, 0)), False)
sketch4.addGeometry(Part.LineSegment(App.Vector(450, 250, 0), App.Vector(433, 250, 0)), False)
sketch4.addGeometry(Part.LineSegment(App.Vector(-450, 250, 0), App.Vector(-450, -250, 0)), False)
sketch4.addGeometry(Part.LineSegment(App.Vector(-450, -250, 0), App.Vector(-433, -250, 0)), False)
sketch4.addGeometry(Part.LineSegment(App.Vector(-433, -250, 0), App.Vector(-433, 250, 0)), False)
sketch4.addGeometry(Part.LineSegment(App.Vector(-433, 250, 0), App.Vector(-450, 250, 0)), False)
sketch4.addConstraint(Sketcher.Constraint("Coincident", 0, 2, 1, 1))
sketch4.addConstraint(Sketcher.Constraint("Coincident", 1, 2, 2, 1))
sketch4.addConstraint(Sketcher.Constraint("Coincident", 2, 2, 3, 1))
sketch4.addConstraint(Sketcher.Constraint("Coincident", 3, 2, 0, 1))
sketch4.addConstraint(Sketcher.Constraint("Coincident", 4, 2, 5, 1))
sketch4.addConstraint(Sketcher.Constraint("Coincident", 5, 2, 6, 1))
sketch4.addConstraint(Sketcher.Constraint("Coincident", 6, 2, 7, 1))
sketch4.addConstraint(Sketcher.Constraint("Coincident", 7, 2, 4, 1))
sketch4.addConstraint(Sketcher.Constraint("Vertical", 0))
sketch4.addConstraint(Sketcher.Constraint("Horizontal", 1))
sketch4.addConstraint(Sketcher.Constraint("Vertical", 2))
sketch4.addConstraint(Sketcher.Constraint("Horizontal", 3))
sketch4.addConstraint(Sketcher.Constraint("Vertical", 4))
sketch4.addConstraint(Sketcher.Constraint("Horizontal", 5))
sketch4.addConstraint(Sketcher.Constraint("Vertical", 6))
sketch4.addConstraint(Sketcher.Constraint("Horizontal", 7))
sketch4.addConstraint(Sketcher.Constraint("Symmetric", 2, 2, 4, 2, -1, 1))
sketch4.addConstraint(Sketcher.Constraint("Symmetric", 0, 2, 6, 2, -1, 1))
sketch4.addConstraint(Sketcher.Constraint("Horizontal", 1, 2, 4, 2))
sketch4.addConstraint(Sketcher.Constraint("DistanceX", 1, 1, 1, 2, 17.0))
sketch4.addConstraint(Sketcher.Constraint("DistanceY", 0, 2, 0, 1, 500.0))
sketch4.addConstraint(Sketcher.Constraint("DistanceX", -1, 1, 0, 2, 433.0))
pocket1 = doc.addObject("PartDesign::Pocket", "Pocket")
body.addObject(pocket1)
pocket1.Profile = sketch4
pocket1.Length = 11

# Sketch on XZ plane
sketch5 = doc.addObject("Sketcher::SketchObject", "Sketch004")
body.addObject(sketch5)
sketch5.AttachmentSupport = (doc.XZ_Plane, [""])
sketch5.MapMode = "FlatFace"
sketch5.AttachmentOffset = App.Placement(App.Vector(0, 0, 28), App.Rotation())
sketch5.addGeometry(Part.LineSegment(App.Vector(415, -198, 0), App.Vector(415, -118, 0)), False)
sketch5.addGeometry(Part.ArcOfCircle(Part.Circle(App.Vector(398, -118, 0), App.Vector(0, 0, 1), 18), math.radians(0), math.radians(180)), False)
sketch5.addGeometry(Part.LineSegment(App.Vector(380, -118, 0), App.Vector(380, -198, 0)), False)
sketch5.addGeometry(Part.ArcOfCircle(Part.Circle(App.Vector(398, -198, 0), App.Vector(0, 0, 1), 18), math.radians(180), math.radians(360)), False)
sketch5.addGeometry(Part.LineSegment(App.Vector(415, 118, 0), App.Vector(415, 198, 0)), False)
sketch5.addGeometry(Part.ArcOfCircle(Part.Circle(App.Vector(397, 198, 0), App.Vector(0, 0, 1), 18), math.radians(0), math.radians(180)), False)
sketch5.addGeometry(Part.LineSegment(App.Vector(380, 198, 0), App.Vector(380, 118, 0)), False)
sketch5.addGeometry(Part.ArcOfCircle(Part.Circle(App.Vector(397, 118, 0), App.Vector(0, 0, 1), 18), math.radians(180), math.radians(360)), False)
sketch5.addConstraint(Sketcher.Constraint("Tangent", 0, 2, 1, 1))
sketch5.addConstraint(Sketcher.Constraint("Tangent", 1, 2, 2, 1))
sketch5.addConstraint(Sketcher.Constraint("Tangent", 2, 2, 3, 1))
sketch5.addConstraint(Sketcher.Constraint("Tangent", 3, 2, 0, 1))
sketch5.addConstraint(Sketcher.Constraint("Tangent", 4, 2, 5, 1))
sketch5.addConstraint(Sketcher.Constraint("Tangent", 5, 2, 6, 1))
sketch5.addConstraint(Sketcher.Constraint("Tangent", 6, 2, 7, 1))
sketch5.addConstraint(Sketcher.Constraint("Tangent", 7, 2, 4, 1))
sketch5.addConstraint(Sketcher.Constraint("Vertical", 0))
sketch5.addConstraint(Sketcher.Constraint("Vertical", 2))
sketch5.addConstraint(Sketcher.Constraint("Vertical", 4))
sketch5.addConstraint(Sketcher.Constraint("Vertical", 6))
sketch5.addConstraint(Sketcher.Constraint("Equal", 3, 5))
sketch5.addConstraint(Sketcher.Constraint("Symmetric", 3, 3, 5, 3, -1))
sketch5.addConstraint(Sketcher.Constraint("Equal", 2, 4))
sketch5.addConstraint(Sketcher.Constraint("Radius", 1, 17.5))
sketch5.addConstraint(Sketcher.Constraint("DistanceY", 0, 1, 0, 2, 80.0))
sketch5.addConstraint(Sketcher.Constraint("DistanceX", -1, 1, 0, 2, 415.0))
sketch5.addConstraint(Sketcher.Constraint("DistanceY", 1, 3, 5, 3, 315.0))
pocket2 = doc.addObject("PartDesign::Pocket", "Pocket001")
body.addObject(pocket2)
pocket2.Profile = sketch5
pocket2.Type = "ThroughAll"
pocket2.Midplane = True
doc.recompute()

fillet = doc.addObject("PartDesign::Fillet", "Fillet")
body.addObject(fillet)
fillet.Base = (pocket2, edges_at(pocket2, [
    (397.5, -28, 100),
    (397.5, 0, 100),
    (397.5, -28, -215),
    (397.5, 0, -215),
]))
fillet.Radius = 8

# Sketch on XZ plane
sketch6 = doc.addObject("Sketcher::SketchObject", "Sketch005")
body.addObject(sketch6)
sketch6.AttachmentSupport = (doc.XZ_Plane, [""])
sketch6.MapMode = "FlatFace"
sketch6.AttachmentOffset = App.Placement(App.Vector(0, 0, 28), App.Rotation())
sketch6.addGeometry(Part.LineSegment(App.Vector(-433, -233, 0), App.Vector(-433, -250, 0)), False)
sketch6.addGeometry(Part.LineSegment(App.Vector(-433, -250, 0), App.Vector(433, -250, 0)), False)
sketch6.addGeometry(Part.LineSegment(App.Vector(433, -250, 0), App.Vector(433, -233, 0)), False)
sketch6.addGeometry(Part.LineSegment(App.Vector(433, -233, 0), App.Vector(-433, -233, 0)), False)
sketch6.addConstraint(Sketcher.Constraint("Coincident", 0, 2, 1, 1))
sketch6.addConstraint(Sketcher.Constraint("Coincident", 1, 2, 2, 1))
sketch6.addConstraint(Sketcher.Constraint("Coincident", 2, 2, 3, 1))
sketch6.addConstraint(Sketcher.Constraint("Coincident", 3, 2, 0, 1))
sketch6.addConstraint(Sketcher.Constraint("Vertical", 0))
sketch6.addConstraint(Sketcher.Constraint("Horizontal", 1))
sketch6.addConstraint(Sketcher.Constraint("Vertical", 2))
sketch6.addConstraint(Sketcher.Constraint("Horizontal", 3))
sketch6.addConstraint(Sketcher.Constraint("DistanceX", 1, 1, 1, 2, 866.0))
sketch6.addConstraint(Sketcher.Constraint("DistanceY", 0, 2, 0, 1, 17.0))
sketch6.addConstraint(Sketcher.Constraint("DistanceX", 0, 2, -1, 1, 433.0))
sketch6.addConstraint(Sketcher.Constraint("DistanceY", 0, 2, -1, 1, 250.0))
pocket3 = doc.addObject("PartDesign::Pocket", "Pocket002")
body.addObject(pocket3)
pocket3.Profile = sketch6
pocket3.Length = 11

# Sketch on XZ plane
sketch7 = doc.addObject("Sketcher::SketchObject", "Sketch006")
body.addObject(sketch7)
sketch7.AttachmentSupport = (doc.XZ_Plane, [""])
sketch7.MapMode = "FlatFace"
sketch7.AttachmentOffset = App.Placement(App.Vector(0, 0, 17), App.Rotation())
sketch7.addGeometry(Part.LineSegment(App.Vector(-150, -223, 0), App.Vector(-150, -250, 0)), False)
sketch7.addGeometry(Part.LineSegment(App.Vector(-150, -250, 0), App.Vector(150, -250, 0)), False)
sketch7.addGeometry(Part.LineSegment(App.Vector(150, -250, 0), App.Vector(150, -223, 0)), False)
sketch7.addGeometry(Part.LineSegment(App.Vector(150, -223, 0), App.Vector(-150, -223, 0)), False)
sketch7.addConstraint(Sketcher.Constraint("Coincident", 0, 2, 1, 1))
sketch7.addConstraint(Sketcher.Constraint("Coincident", 1, 2, 2, 1))
sketch7.addConstraint(Sketcher.Constraint("Coincident", 2, 2, 3, 1))
sketch7.addConstraint(Sketcher.Constraint("Coincident", 3, 2, 0, 1))
sketch7.addConstraint(Sketcher.Constraint("Vertical", 0))
sketch7.addConstraint(Sketcher.Constraint("Horizontal", 1))
sketch7.addConstraint(Sketcher.Constraint("Vertical", 2))
sketch7.addConstraint(Sketcher.Constraint("Horizontal", 3))
sketch7.addConstraint(Sketcher.Constraint("DistanceX", 1, 1, 1, 2, 300.0))
sketch7.addConstraint(Sketcher.Constraint("DistanceY", 0, 2, 0, 1, 27.0))
sketch7.addConstraint(Sketcher.Constraint("DistanceX", 0, 2, -1, 1, 150.0))
sketch7.addConstraint(Sketcher.Constraint("DistanceY", 0, 2, -1, 1, 250.0))
pocket4 = doc.addObject("PartDesign::Pocket", "Pocket003")
body.addObject(pocket4)
pocket4.Profile = sketch7
pocket4.Length = 8

doc.recompute()
